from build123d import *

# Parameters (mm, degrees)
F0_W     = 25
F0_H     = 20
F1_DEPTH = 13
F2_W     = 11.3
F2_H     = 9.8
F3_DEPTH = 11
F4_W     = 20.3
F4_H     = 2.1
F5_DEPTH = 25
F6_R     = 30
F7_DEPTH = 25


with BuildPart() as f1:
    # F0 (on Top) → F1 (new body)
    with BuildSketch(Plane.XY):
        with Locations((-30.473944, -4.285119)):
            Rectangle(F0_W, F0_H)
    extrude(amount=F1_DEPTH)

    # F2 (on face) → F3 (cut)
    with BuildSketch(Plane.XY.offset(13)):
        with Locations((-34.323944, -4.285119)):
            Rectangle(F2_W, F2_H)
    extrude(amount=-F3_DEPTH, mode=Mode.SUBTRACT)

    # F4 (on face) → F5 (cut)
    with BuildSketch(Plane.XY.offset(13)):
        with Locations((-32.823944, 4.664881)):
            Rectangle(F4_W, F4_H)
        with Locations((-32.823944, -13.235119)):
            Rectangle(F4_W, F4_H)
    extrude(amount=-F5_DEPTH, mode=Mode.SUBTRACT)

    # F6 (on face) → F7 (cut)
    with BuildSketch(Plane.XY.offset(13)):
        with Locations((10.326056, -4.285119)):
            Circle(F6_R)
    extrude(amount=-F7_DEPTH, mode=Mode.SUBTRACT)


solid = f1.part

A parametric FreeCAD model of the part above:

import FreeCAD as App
import Part
import Sketcher
from FreeCAD import Vector

doc = App.newDocument("Part")
body = doc.addObject("PartDesign::Body", "Body")

sketch1 = doc.addObject("Sketcher::SketchObject", "Sketch")
body.addObject(sketch1)
sketch1.AttachmentSupport = (doc.XY_Plane, [""])
sketch1.MapMode = "FlatFace"
sketch1.addGeometry(Part.LineSegment(Vector(-43, 6, 0), Vector(-43, -14, 0)), False)
sketch1.addGeometry(Part.LineSegment(Vector(-43, -14, 0), Vector(-18, -14, 0)), False)
sketch1.addGeometry(Part.LineSegment(Vector(-18, -14, 0), Vector(-18, 6, 0)), False)
sketch1.addGeometry(Part.LineSegment(Vector(-18, 6, 0), Vector(-43, 6, 0)), False)
sketch1.addConstraint(Sketcher.Constraint("Coincident", 0, 2, 1, 1))
sketch1.addConstraint(Sketcher.Constraint("Coincident", 1, 2, 2, 1))
sketch1.addConstraint(Sketcher.Constraint("Coincident", 2, 2, 3, 1))
sketch1.addConstraint(Sketcher.Constraint("Coincident", 3, 2, 0, 1))
sketch1.addConstraint(Sketcher.Constraint("Vertical", 0))
sketch1.addConstraint(Sketcher.Constraint("Horizontal", 1))
sketch1.addConstraint(Sketcher.Constraint("Vertical", 2))
sketch1.addConstraint(Sketcher.Constraint("Horizontal", 3))
sketch1.addConstraint(Sketcher.Constraint("DistanceX", 1, 1, 1, 2, 25.0))
sketch1.addConstraint(Sketcher.Constraint("DistanceY", 0, 2, 0, 1, 20.0))
sketch1.addConstraint(Sketcher.Constraint("DistanceY", 0, 2, -1, 1, 14.285119))
sketch1.addConstraint(Sketcher.Constraint("DistanceX", 0, 2, -1, 1, 42.973944))
pad1 = doc.addObject("PartDesign::Pad", "Pad")
body.addObject(pad1)
pad1.Profile = sketch1
pad1.Length = 13

sketch2 = doc.addObject("Sketcher::SketchObject", "Sketch001")
body.addObject(sketch2)
sketch2.AttachmentSupport = (doc.XY_Plane, [""])
sketch2.MapMode = "FlatFace"
sketch2.AttachmentOffset = App.Placement(Vector(0, 0, 13), App.Rotation())
sketch2.addGeometry(Part.LineSegment(Vector(-40, 1, 0), Vector(-40, -9, 0)), False)
sketch2.addGeometry(Part.LineSegment(Vector(-40, -9, 0), Vector(-29, -9, 0)), False)
sketch2.addGeometry(Part.LineSegment(Vector(-29, -9, 0), Vector(-29, 1, 0)), False)
sketch2.addGeometry(Part.LineSegment(Vector(-29, 1, 0), Vector(-40, 1, 0)), False)
sketch2.addConstraint(Sketcher.Constraint("Coincident", 0, 2, 1, 1))
sketch2.addConstraint(Sketcher.Constraint("Coincident", 1, 2, 2, 1))
sketch2.addConstraint(Sketcher.Constraint("Coincident", 2, 2, 3, 1))
sketch2.addConstraint(Sketcher.Constraint("Coincident", 3, 2, 0, 1))
sketch2.addConstraint(Sketcher.Constraint("Vertical", 0))
sketch2.addConstraint(Sketcher.Constraint("Horizontal", 1))
sketch2.addConstraint(Sketcher.Constraint("Vertical", 2))
sketch2.addConstraint(Sketcher.Constraint("Horizontal", 3))
sketch2.addConstraint(Sketcher.Constraint("DistanceX", 1, 1, 1, 2, 11.3))
sketch2.addConstraint(Sketcher.Constraint("DistanceY", 0, 2, 0, 1, 9.8))
sketch2.addConstraint(Sketcher.Constraint("DistanceY", 0, 2, -1, 1, 9.185119))
sketch2.addConstraint(Sketcher.Constraint("DistanceX", 0, 2, -1, 1, 39.973944))
pocket1 = doc.addObject("PartDesign::Pocket", "Pocket")
body.addObject(pocket1)
pocket1.Profile = sketch2
pocket1.Length = 11

sketch3 = doc.addObject("Sketcher::SketchObject", "Sketch002")
body.addObject(sketch3)
sketch3.AttachmentSupport = (doc.XY_Plane, [""])
sketch3.MapMode = "FlatFace"
sketch3.AttachmentOffset = App.Placement(Vector(0, 0, 13), App.Rotation())
sketch3.addGeometry(Part.LineSegment(Vector(-43, 5.7, 0), Vector(-43, 3.6, 0)), False)
sketch3.addGeometry(Part.LineSegment(Vector(-43, 3.6, 0), Vector(-22.7, 3.6, 0)), False)
sketch3.addGeometry(Part.LineSegment(Vector(-22.7, 3.6, 0), Vector(-22.7, 5.7, 0)), False)
sketch3.addGeometry(Part.LineSegment(Vector(-22.7, 5.7, 0), Vector(-43, 5.7, 0)), False)
sketch3.addGeometry(Part.LineSegment(Vector(-43, -12.2, 0), Vector(-43, -14.3, 0)), False)
sketch3.addGeometry(Part.LineSegment(Vector(-43, -14.3, 0), Vector(-22.7, -14.3, 0)), False)
sketch3.addGeometry(Part.LineSegment(Vector(-22.7, -14.3, 0), Vector(-22.7, -12.2, 0)), False)
sketch3.addGeometry(Part.LineSegment(Vector(-22.7, -12.2, 0), Vector(-43, -12.2, 0)), False)
sketch3.addConstraint(Sketcher.Constraint("Coincident", 0, 2, 1, 1))
sketch3.addConstraint(Sketcher.Constraint("Coincident", 1, 2, 2, 1))
sketch3.addConstraint(Sketcher.Constraint("Coincident", 2, 2, 3, 1))
sketch3.addConstraint(Sketcher.Constraint("Coincident", 3, 2, 0, 1))
sketch3.addConstraint(Sketcher.Constraint("Coincident", 4, 2, 5, 1))
sketch3.addConstraint(Sketcher.Constraint("Coincident", 5, 2, 6, 1))
sketch3.addConstraint(Sketcher.Constraint("Coincident", 6, 2, 7, 1))
sketch3.addConstraint(Sketcher.Constraint("Coincident", 7, 2, 4, 1))
sketch3.addConstraint(Sketcher.Constraint("Vertical", 0))
sketch3.addConstraint(Sketcher.Constraint("Horizontal", 1))
sketch3.addConstraint(Sketcher.Constraint("Vertical", 2))
sketch3.addConstraint(Sketcher.Constraint("Horizontal", 3))
sketch3.addConstraint(Sketcher.Constraint("Vertical", 4))
sketch3.addConstraint(Sketcher.Constraint("Horizontal", 5))
sketch3.addConstraint(Sketcher.Constraint("Vertical", 6))
sketch3.addConstraint(Sketcher.Constraint("Horizontal", 7))
sketch3.addConstraint(Sketcher.Constraint("Vertical", 3, 2, 4, 2))
sketch3.addConstraint(Sketcher.Constraint("Vertical", 2, 2, 5, 2))
sketch3.addConstraint(Sketcher.Constraint("Equal", 2, 4))
sketch3.addConstraint(Sketcher.Constraint("DistanceX", 1, 1, 1, 2, 20.3))
sketch3.addConstraint(Sketcher.Constraint("DistanceY", 0, 2, 0, 1, 2.1))
sketch3.addConstraint(Sketcher.Constraint("DistanceY", 4, 2, 3, 2, 20.0))
sketch3.addConstraint(Sketcher.Constraint("DistanceY", -1, 1, 0, 2, 3.614881))
sketch3.addConstraint(Sketcher.Constraint("DistanceX", 0, 2, -1, 1, 42.973944))
pocket2 = doc.addObject("PartDesign::Pocket", "Pocket001")
body.addObject(pocket2)
pocket2.Profile = sketch3
pocket2.Length = 25

sketch4 = doc.addObject("Sketcher::SketchObject", "Sketch003")
body.addObject(sketch4)
sketch4.AttachmentSupport = (doc.XY_Plane, [""])
sketch4.MapMode = "FlatFace"
sketch4.AttachmentOffset = App.Placement(Vector(0, 0, 13), App.Rotation())
sketch4.addGeometry(Part.Circle(Vector(10, -4, 0), Vector(0, 0, 1), 30), False)
sketch4.addConstraint(Sketcher.Constraint("Diameter", 0, 60.0))
sketch4.addConstraint(Sketcher.Constraint("DistanceY", 0, 3, -1, 1, 4.285119))
sketch4.addConstraint(Sketcher.Constraint("DistanceX", -1, 1, 0, 3, 10.326056))
pocket3 = doc.addObject("PartDesign::Pocket", "Pocket002")
body.addObject(pocket3)
pocket3.Profile = sketch4
pocket3.Length = 25

doc.recompute()
